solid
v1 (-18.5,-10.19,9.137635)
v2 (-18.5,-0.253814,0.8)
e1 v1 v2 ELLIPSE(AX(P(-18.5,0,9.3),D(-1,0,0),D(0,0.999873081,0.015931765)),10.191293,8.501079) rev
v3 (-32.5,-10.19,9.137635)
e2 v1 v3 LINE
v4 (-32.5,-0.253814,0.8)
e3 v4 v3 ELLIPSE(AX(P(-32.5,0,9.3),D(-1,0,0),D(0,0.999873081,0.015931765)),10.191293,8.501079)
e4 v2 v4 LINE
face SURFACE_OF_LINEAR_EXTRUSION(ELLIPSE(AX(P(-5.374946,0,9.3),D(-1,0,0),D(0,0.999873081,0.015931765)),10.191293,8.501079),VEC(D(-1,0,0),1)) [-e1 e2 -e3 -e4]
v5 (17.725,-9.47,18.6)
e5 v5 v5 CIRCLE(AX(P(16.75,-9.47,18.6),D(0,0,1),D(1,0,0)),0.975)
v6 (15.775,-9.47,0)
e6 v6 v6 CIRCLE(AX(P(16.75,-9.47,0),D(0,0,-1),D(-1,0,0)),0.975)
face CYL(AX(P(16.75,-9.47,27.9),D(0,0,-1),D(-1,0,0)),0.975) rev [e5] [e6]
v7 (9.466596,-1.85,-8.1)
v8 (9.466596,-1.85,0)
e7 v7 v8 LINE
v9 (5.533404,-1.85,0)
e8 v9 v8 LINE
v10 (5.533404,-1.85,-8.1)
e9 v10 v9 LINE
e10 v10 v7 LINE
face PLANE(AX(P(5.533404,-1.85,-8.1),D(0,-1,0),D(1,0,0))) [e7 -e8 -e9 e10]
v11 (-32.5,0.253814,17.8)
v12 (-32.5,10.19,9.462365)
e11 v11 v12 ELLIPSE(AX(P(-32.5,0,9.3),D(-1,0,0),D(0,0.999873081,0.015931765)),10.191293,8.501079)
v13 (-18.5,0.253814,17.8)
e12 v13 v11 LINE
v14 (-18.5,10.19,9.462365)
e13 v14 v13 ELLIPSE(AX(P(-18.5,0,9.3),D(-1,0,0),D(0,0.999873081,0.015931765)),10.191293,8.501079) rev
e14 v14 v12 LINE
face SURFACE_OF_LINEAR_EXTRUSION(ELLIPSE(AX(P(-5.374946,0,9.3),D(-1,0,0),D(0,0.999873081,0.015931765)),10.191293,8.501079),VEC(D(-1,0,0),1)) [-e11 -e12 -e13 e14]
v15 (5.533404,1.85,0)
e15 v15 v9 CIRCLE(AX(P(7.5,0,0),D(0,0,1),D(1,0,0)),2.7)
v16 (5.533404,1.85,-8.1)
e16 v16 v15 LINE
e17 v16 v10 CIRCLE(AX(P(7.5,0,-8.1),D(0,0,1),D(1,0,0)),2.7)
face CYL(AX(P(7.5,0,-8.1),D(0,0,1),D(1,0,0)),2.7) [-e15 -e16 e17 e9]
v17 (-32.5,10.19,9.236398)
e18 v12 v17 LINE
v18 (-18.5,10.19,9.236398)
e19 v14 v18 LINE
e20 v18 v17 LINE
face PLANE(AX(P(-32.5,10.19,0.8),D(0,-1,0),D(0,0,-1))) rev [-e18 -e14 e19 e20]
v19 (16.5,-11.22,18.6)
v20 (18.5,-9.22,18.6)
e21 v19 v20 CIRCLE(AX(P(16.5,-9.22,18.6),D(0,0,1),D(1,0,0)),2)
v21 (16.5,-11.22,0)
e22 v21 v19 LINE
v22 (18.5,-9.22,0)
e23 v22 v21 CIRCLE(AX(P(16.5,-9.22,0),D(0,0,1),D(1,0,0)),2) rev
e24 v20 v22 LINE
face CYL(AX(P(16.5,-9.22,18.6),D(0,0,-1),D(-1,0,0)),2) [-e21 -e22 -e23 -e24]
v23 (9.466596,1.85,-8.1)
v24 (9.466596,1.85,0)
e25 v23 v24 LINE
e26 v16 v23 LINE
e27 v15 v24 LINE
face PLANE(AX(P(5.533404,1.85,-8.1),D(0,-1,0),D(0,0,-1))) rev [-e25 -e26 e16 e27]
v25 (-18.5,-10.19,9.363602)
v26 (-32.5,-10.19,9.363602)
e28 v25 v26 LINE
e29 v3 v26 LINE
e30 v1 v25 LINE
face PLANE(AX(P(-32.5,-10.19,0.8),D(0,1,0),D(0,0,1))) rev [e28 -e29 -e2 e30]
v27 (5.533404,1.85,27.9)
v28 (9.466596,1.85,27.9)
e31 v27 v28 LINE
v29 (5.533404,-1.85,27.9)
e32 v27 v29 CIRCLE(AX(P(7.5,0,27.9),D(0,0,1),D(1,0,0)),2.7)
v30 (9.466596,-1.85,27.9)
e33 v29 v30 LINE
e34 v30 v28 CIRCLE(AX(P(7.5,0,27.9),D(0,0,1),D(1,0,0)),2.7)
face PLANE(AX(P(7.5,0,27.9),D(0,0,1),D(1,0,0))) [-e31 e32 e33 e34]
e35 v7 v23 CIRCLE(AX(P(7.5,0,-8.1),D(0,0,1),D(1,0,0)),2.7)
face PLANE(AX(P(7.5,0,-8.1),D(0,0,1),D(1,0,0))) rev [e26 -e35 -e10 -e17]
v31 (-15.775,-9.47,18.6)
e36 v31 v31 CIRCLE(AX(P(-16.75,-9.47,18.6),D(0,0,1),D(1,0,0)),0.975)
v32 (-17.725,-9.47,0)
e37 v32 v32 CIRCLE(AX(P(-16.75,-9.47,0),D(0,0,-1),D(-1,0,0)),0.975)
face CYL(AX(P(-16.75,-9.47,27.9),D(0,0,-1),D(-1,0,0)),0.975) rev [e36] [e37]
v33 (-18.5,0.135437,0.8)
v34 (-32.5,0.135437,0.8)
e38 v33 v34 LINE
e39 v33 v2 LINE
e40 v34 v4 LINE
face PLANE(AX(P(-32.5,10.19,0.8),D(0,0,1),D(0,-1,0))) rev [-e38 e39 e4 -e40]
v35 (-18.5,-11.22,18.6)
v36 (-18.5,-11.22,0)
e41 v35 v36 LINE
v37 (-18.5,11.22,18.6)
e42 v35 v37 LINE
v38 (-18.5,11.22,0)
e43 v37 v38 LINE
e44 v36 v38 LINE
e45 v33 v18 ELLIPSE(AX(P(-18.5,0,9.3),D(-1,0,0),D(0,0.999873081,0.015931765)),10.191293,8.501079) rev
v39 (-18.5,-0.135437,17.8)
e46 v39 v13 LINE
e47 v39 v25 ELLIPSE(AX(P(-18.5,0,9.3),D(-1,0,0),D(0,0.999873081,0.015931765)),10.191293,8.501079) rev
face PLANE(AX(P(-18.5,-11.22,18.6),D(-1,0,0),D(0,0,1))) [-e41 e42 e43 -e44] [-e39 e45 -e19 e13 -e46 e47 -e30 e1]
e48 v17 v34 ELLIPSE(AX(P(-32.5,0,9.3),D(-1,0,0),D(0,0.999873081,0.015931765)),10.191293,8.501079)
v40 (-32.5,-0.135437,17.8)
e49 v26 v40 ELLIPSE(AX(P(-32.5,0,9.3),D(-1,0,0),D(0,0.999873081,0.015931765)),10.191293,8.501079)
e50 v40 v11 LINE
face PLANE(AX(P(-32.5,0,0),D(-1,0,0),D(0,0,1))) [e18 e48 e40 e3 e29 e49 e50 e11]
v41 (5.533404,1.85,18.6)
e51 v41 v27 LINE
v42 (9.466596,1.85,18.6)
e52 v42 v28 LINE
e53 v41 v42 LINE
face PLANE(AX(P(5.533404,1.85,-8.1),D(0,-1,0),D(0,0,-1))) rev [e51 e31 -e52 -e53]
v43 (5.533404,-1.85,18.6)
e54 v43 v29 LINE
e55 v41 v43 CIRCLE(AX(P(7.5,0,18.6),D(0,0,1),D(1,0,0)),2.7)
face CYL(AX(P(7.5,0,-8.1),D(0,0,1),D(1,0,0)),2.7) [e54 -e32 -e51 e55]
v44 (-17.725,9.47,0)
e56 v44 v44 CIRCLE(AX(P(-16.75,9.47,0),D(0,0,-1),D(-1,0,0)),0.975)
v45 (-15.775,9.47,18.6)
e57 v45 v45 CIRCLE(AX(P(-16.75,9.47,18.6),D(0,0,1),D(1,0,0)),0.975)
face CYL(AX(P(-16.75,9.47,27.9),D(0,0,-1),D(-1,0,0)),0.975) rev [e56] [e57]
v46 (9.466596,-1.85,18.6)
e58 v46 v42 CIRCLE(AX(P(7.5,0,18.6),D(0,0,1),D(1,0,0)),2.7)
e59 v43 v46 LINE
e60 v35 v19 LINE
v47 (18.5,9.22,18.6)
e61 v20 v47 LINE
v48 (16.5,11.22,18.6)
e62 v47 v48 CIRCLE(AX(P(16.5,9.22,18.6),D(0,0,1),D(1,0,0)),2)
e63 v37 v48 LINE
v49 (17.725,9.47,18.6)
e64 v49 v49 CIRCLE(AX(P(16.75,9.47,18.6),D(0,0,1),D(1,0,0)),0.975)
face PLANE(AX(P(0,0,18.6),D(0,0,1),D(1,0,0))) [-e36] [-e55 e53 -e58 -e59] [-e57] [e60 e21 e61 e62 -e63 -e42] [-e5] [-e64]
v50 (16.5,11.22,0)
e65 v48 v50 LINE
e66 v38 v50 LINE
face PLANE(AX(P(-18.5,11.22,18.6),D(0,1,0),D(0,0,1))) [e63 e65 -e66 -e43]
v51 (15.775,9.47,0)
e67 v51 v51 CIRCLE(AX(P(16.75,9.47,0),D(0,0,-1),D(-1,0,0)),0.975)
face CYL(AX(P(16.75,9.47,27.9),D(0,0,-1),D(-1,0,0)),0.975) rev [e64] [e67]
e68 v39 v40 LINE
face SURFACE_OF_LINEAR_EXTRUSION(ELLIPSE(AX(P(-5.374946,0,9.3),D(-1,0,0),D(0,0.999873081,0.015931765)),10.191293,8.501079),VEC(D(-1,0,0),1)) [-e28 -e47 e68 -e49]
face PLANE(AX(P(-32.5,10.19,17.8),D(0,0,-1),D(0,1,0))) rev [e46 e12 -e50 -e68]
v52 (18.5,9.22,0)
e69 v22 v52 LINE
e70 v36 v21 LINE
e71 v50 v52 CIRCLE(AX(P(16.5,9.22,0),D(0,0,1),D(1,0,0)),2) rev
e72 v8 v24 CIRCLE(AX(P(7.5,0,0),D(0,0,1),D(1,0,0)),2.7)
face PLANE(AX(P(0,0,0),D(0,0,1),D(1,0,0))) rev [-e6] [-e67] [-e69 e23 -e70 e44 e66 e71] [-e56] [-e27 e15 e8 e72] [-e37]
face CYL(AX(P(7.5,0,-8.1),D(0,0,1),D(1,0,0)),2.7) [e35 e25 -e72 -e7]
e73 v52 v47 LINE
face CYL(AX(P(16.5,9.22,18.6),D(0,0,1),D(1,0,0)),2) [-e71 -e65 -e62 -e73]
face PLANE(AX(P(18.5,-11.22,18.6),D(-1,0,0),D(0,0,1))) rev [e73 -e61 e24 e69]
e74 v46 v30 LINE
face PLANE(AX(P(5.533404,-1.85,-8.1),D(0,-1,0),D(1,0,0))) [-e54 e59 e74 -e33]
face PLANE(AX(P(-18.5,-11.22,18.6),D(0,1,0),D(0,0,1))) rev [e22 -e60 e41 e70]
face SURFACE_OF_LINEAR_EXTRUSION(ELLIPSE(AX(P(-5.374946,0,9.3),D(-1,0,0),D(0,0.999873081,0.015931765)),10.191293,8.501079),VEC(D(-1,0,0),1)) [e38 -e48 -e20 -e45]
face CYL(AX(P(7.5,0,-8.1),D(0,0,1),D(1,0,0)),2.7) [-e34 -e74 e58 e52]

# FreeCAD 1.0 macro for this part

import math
import FreeCAD as App
import Part
import Sketcher
from FreeCAD import Vector
Q = App.Units.Quantity


def edges_at(feature, points):
    """Names of the edges that pass closest to the given points."""
    edges = feature.Shape.Edges
    near = lambda p: min(range(len(edges)), key=lambda i: edges[i].distToShape(Part.Vertex(*p))[0])
    return sorted({f"Edge{near(p) + 1}" for p in points})


def add_polygon(sketch, points):
    """Adds a closed chain of lines whose ends are joined by coincident constraints."""
    first, n = sketch.GeometryCount, len(points)
    for a, b in zip(points, points[1:] + points[:1]):
        sketch.addGeometry(Part.LineSegment(App.Vector(*a, 0), App.Vector(*b, 0)), False)
    for i in range(n):
        sketch.addConstraint(Sketcher.Constraint("Coincident", first + i, 2, first + (i + 1) % n, 1))

doc = App.newDocument("Part")
body = doc.addObject("PartDesign::Body", "Body")

# Sketch on XY plane
sketch1 = body.newObject("Sketcher::SketchObject", "Sketch")
sketch1.AttachmentSupport = (doc.getObject("XY_Plane"), [""])
sketch1.MapMode = "FlatFace"
add_polygon(sketch1, [(-18, 11), (-18, -11), (18, -11), (18, 11)])  # lines 0-3
sketch1.addConstraint(Sketcher.Constraint("Vertical", 0))
sketch1.addConstraint(Sketcher.Constraint("Horizontal", 1))
sketch1.addConstraint(Sketcher.Constraint("Vertical", 2))
sketch1.addConstraint(Sketcher.Constraint("Horizontal", 3))
sketch1.addConstraint(Sketcher.Constraint("Symmetric", 0, 2, 2, 2, -1, 1))
sketch1.addConstraint(Sketcher.Constraint("DistanceX", 1, 1, 1, 2, Q("37 mm")))
sketch1.addConstraint(Sketcher.Constraint("DistanceY", 0, 2, 0, 1, Q("22.44 mm")))
pad1 = body.newObject("PartDesign::Pad", "Pad")
pad1.Profile = sketch1
pad1.Length = 18.6
doc.recompute()

fillet = body.newObject("PartDesign::Fillet", "Fillet")
fillet.Base = (pad1, edges_at(pad1, [(18.5, 11.22, 9.3), (18.5, -11.22, 9.3)]))
fillet.Radius = 2

# Sketch on YZ plane
sketch2 = body.newObject("Sketcher::SketchObject", "Sketch001")
sketch2.AttachmentSupport = (doc.getObject("YZ_Plane"), [""])
sketch2.MapMode = "FlatFace"
sketch2.AttachmentOffset = App.Placement(Vector(0, 0, -18.5), App.Rotation())
add_polygon(sketch2, [(10, 1), (-10, 1), (-10, 18), (10, 18)])  # lines 0-3
sketch2.addConstraint(Sketcher.Constraint("Horizontal", 0))
sketch2.addConstraint(Sketcher.Constraint("Vertical", 1))
sketch2.addConstraint(Sketcher.Constraint("Horizontal", 2))
sketch2.addConstraint(Sketcher.Constraint("Vertical", 3))
sketch2.addConstraint(Sketcher.Constraint("DistanceY", 1, 1, 1, 2, Q("17 mm")))
sketch2.addConstraint(Sketcher.Constraint("DistanceX", 0, 2, 0, 1, Q("20.38 mm")))
sketch2.addConstraint(Sketcher.Constraint("DistanceY", -1, 1, 0, 2, Q("0.8 mm")))
sketch2.addConstraint(Sketcher.Constraint("DistanceX", 0, 2, -1, 1, Q("10.19 mm")))
pad2 = body.newObject("PartDesign::Pad", "Pad001")
pad2.Profile = sketch2
pad2.Length = 14
pad2.Reversed = True

# Sketch on XY plane
sketch3 = body.newObject("Sketcher::SketchObject", "Sketch002")
sketch3.AttachmentSupport = (doc.getObject("XY_Plane"), [""])
sketch3.MapMode = "FlatFace"
sketch3.AttachmentOffset = App.Placement(Vector(0, 0, 18.6), App.Rotation())
sketch3.addGeometry(Part.LineSegment(Vector(9.5, 1.9, 0), Vector(5.5, 1.9, 0)), False)
sketch3.addGeometry(Part.ArcOfCircle(Part.Circle(Vector(7.5, 0, 0), Vector(0, 0, 1), 2.7), math.radians(137), math.radians(223)), False)
sketch3.addGeometry(Part.LineSegment(Vector(5.5, -1.9, 0), Vector(9.5, -1.9, 0)), False)
sketch3.addGeometry(Part.ArcOfCircle(Part.Circle(Vector(7.5, 0, 0), Vector(0, 0, 1), 2.7), math.radians(-43), math.radians(43)), False)
sketch3.addConstraint(Sketcher.Constraint("Coincident", 0, 2, 1, 1))
sketch3.addConstraint(Sketcher.Constraint("Coincident", 1, 2, 2, 1))
sketch3.addConstraint(Sketcher.Constraint("Coincident", 2, 2, 3, 1))
sketch3.addConstraint(Sketcher.Constraint("Coincident", 3, 2, 0, 1))
sketch3.addConstraint(Sketcher.Constraint("Horizontal", 0))
sketch3.addConstraint(Sketcher.Constraint("Horizontal", 2))
sketch3.addConstraint(Sketcher.Constraint("Coincident", 3, 3, 1, 3))
sketch3.addConstraint(Sketcher.Constraint("Equal", 1, 3))
sketch3.addConstraint(Sketcher.Constraint("Symmetric", 0, 2, 1, 2, -1))
sketch3.addConstraint(Sketcher.Constraint("Radius", 1, Q("2.7 mm")))
sketch3.addConstraint(Sketcher.Constraint("DistanceX", -1, 1, 1, 3, Q("7.5 mm")))
sketch3.addConstraint(Sketcher.Constraint("DistanceY", 1, 2, 0, 2, Q("3.7 mm")))
pad3 = body.newObject("PartDesign::Pad", "Pad002")
pad3.Profile = sketch3
pad3.Type = "TwoLengths"
pad3.Length = 9.3
pad3.Length2 = 26.7

# Sketch on YZ plane
sketch4 = body.newObject("Sketcher::SketchObject", "Sketch003")
sketch4.AttachmentSupport = (doc.getObject("YZ_Plane"), [""])
sketch4.MapMode = "FlatFace"
sketch4.AttachmentOffset = App.Placement(Vector(0, 0, -32.5), App.Rotation())
sketch4.addGeometry(Part.LineSegment(Vector(10.19, 0.8, 0), Vector(0.135437, 0.8, 0)), False)
sketch4.addGeometry(Part.BSplineCurve([Vector(10.19, 9.236398, 0), Vector(10.058116, 0.958106, 0), Vector(0.135437, 0.8, 0)], [3, 3], [0.026580808, 1.570796327], False, 2, [1, 0.71644179, 1], False), False)
sketch4.addGeometry(Part.LineSegment(Vector(10.19, 9.236398, 0), Vector(10.19, 0.8, 0)), False)
sketch4.addGeometry(Part.LineSegment(Vector(10.19, 17.8, 0), Vector(10.19, 9.462365, 0)), False)
sketch4.addGeometry(Part.BSplineCurve([Vector(0.253814, 17.8, 0), Vector(10.05964, 17.643721, 0), Vector(10.19, 9.462365, 0)], [3, 3], [4.750587933, 6.283185307], False, 2, [1, 0.72048236, 1], False), False)
sketch4.addGeometry(Part.LineSegment(Vector(0.253814, 17.8, 0), Vector(10.19, 17.8, 0)), False)
sketch4.addGeometry(Part.BSplineCurve([Vector(-10.19, 9.363602, 0), Vector(-10.058116, 17.641894, 0), Vector(-0.135437, 17.8, 0)], [3, 3], [3.168173462, 4.71238898], False, 2, [1, 0.71644179, 1], False), False)
sketch4.addGeometry(Part.LineSegment(Vector(-10.19, 9.363602, 0), Vector(-10.19, 17.8, 0)), False)
sketch4.addGeometry(Part.LineSegment(Vector(-10.19, 17.8, 0), Vector(-0.135437, 17.8, 0)), False)
sketch4.addGeometry(Part.BSplineCurve([Vector(-0.253814, 0.8, 0), Vector(-10.05964, 0.956279, 0), Vector(-10.19, 9.137635, 0)], [3, 3], [1.608995279, 3.141592654], False, 2, [1, 0.72048236, 1], False), False)
sketch4.addGeometry(Part.LineSegment(Vector(-0.253814, 0.8, 0), Vector(-10.19, 0.8, 0)), False)
sketch4.addGeometry(Part.LineSegment(Vector(-10.19, 0.8, 0), Vector(-10.19, 9.137635, 0)), False)
sketch4.addConstraint(Sketcher.Constraint("Block", 1))
sketch4.addConstraint(Sketcher.Constraint("Block", 4))
sketch4.addConstraint(Sketcher.Constraint("Block", 6))
sketch4.addConstraint(Sketcher.Constraint("Block", 9))
sketch4.addConstraint(Sketcher.Constraint("Coincident", 0, 2, 1, 2))
sketch4.addConstraint(Sketcher.Constraint("Coincident", 1, 1, 2, 1))
sketch4.addConstraint(Sketcher.Constraint("Coincident", 2, 2, 0, 1))
sketch4.addConstraint(Sketcher.Constraint("Coincident", 3, 2, 4, 2))
sketch4.addConstraint(Sketcher.Constraint("Coincident", 4, 1, 5, 1))
sketch4.addConstraint(Sketcher.Constraint("Coincident", 5, 2, 3, 1))
sketch4.addConstraint(Sketcher.Constraint("Coincident", 6, 1, 7, 1))
sketch4.addConstraint(Sketcher.Constraint("Coincident", 7, 2, 8, 1))
sketch4.addConstraint(Sketcher.Constraint("Coincident", 8, 2, 6, 2))
sketch4.addConstraint(Sketcher.Constraint("Coincident", 9, 1, 10, 1))
sketch4.addConstraint(Sketcher.Constraint("Coincident", 10, 2, 11, 1))
sketch4.addConstraint(Sketcher.Constraint("Coincident", 11, 2, 9, 2))
sketch4.addConstraint(Sketcher.Constraint("Horizontal", 0))
sketch4.addConstraint(Sketcher.Constraint("Vertical", 2))
sketch4.addConstraint(Sketcher.Constraint("Vertical", 3))
sketch4.addConstraint(Sketcher.Constraint("Horizontal", 5))
sketch4.addConstraint(Sketcher.Constraint("Vertical", 7))
sketch4.addConstraint(Sketcher.Constraint("Horizontal", 8))
sketch4.addConstraint(Sketcher.Constraint("Horizontal", 10))
sketch4.addConstraint(Sketcher.Constraint("Vertical", 11))
pocket1 = body.newObject("PartDesign::Pocket", "Pocket")
pocket1.Profile = sketch4
pocket1.Length = 14
pocket1.Reversed = True

# Sketch on XY plane
sketch5 = body.newObject("Sketcher::SketchObject", "Sketch004")
sketch5.AttachmentSupport = (doc.getObject("XY_Plane"), [""])
sketch5.MapMode = "FlatFace"
sketch5.addGeometry(Part.Circle(Vector(16.8, 9.5, 0), Vector(0, 0, 1), 1), False)
sketch5.addGeometry(Part.Circle(Vector(16.8, -9.5, 0), Vector(0, 0, 1), 1), False)
sketch5.addGeometry(Part.Circle(Vector(-16.8, -9.5, 0), Vector(0, 0, 1), 1), False)
sketch5.addGeometry(Part.Circle(Vector(-16.8, 9.5, 0), Vector(0, 0, 1), 1), False)
sketch5.addConstraint(Sketcher.Constraint("Equal", 0, 1))
sketch5.addConstraint(Sketcher.Constraint("Equal", 1, 2))
sketch5.addConstraint(Sketcher.Constraint("Equal", 2, 3))
sketch5.addConstraint(Sketcher.Constraint("Symmetric", 0, 3, 2, 3, -1, 1))
sketch5.addConstraint(Sketcher.Constraint("Symmetric", 1, 3, 3, 3, -1, 1))
sketch5.addConstraint(Sketcher.Constraint("Symmetric", 1, 3, 2, 3, -2))
sketch5.addConstraint(Sketcher.Constraint("Diameter", 0, Q("1.95 mm")))
sketch5.addConstraint(Sketcher.Constraint("DistanceX", 2, 3, 1, 3, Q("33.5 mm")))
sketch5.addConstraint(Sketcher.Constraint("DistanceY", -1, 1, 0, 3, Q("9.47 mm")))
pocket2 = body.newObject("PartDesign::Pocket", "Pocket001")
pocket2.Profile = sketch5
pocket2.Type = "ThroughAll"
pocket2.Reversed = True

doc.recompute()
